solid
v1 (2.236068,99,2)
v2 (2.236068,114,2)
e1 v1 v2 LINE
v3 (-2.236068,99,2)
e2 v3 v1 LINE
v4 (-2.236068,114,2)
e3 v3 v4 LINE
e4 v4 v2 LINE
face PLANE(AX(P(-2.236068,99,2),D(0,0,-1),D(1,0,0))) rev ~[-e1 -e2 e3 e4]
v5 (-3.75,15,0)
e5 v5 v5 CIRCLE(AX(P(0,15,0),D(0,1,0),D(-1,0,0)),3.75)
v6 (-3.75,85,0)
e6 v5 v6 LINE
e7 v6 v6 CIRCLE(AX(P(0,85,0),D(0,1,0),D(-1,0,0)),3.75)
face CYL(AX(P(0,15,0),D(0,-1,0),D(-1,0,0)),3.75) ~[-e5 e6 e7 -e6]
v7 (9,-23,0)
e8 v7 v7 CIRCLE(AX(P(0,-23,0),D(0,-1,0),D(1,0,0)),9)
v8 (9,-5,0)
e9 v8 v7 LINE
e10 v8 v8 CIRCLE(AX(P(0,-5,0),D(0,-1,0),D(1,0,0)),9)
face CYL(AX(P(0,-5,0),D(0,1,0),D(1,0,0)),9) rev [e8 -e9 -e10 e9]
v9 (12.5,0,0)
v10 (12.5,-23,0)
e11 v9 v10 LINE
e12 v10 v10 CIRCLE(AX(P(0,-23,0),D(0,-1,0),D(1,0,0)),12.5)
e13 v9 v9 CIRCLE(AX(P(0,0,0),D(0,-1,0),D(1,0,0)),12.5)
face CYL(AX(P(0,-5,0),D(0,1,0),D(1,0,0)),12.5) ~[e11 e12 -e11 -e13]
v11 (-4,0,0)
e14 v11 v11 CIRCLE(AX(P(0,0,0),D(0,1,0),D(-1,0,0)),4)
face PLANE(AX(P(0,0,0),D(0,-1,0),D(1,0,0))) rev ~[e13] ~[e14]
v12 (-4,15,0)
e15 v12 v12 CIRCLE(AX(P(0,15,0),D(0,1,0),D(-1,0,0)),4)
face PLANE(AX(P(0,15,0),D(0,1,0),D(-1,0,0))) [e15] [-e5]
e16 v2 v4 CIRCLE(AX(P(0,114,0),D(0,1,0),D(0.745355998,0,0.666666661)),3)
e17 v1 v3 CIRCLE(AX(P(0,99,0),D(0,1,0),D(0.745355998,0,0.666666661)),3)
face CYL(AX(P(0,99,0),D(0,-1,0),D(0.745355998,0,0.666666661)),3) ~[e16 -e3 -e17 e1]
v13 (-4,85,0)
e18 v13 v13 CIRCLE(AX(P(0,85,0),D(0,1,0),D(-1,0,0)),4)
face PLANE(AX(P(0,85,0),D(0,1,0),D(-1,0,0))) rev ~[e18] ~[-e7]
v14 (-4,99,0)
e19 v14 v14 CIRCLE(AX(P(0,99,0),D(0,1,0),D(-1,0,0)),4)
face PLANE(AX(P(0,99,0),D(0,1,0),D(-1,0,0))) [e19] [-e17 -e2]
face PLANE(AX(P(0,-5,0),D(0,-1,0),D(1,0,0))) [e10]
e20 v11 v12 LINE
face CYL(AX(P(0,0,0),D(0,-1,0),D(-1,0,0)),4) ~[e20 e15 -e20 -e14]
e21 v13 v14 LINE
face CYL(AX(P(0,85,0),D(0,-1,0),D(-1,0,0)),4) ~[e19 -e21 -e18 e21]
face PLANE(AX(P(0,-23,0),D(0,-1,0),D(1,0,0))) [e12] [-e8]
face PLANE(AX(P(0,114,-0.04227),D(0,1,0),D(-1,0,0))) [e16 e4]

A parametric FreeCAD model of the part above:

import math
import FreeCAD as App
import Part
import Sketcher

V = App.Vector
Q = App.Units.Quantity

doc = App.newDocument("Part")
body = doc.addObject("PartDesign::Body", "Body")

# Sketch on XZ plane
sketch1 = doc.addObject("Sketcher::SketchObject", "Sketch")
body.addObject(sketch1)
sketch1.AttachmentSupport = (doc.XZ_Plane, [""])
sketch1.MapMode = "FlatFace"
sketch1.addGeometry(Part.Circle(V(0, 0, 0), V(0, 0, 1), 12), False)
sketch1.addConstraint([
    Sketcher.Constraint("Coincident", 0, 3, -1, 1),
    Sketcher.Constraint("Diameter", 0, Q("25 mm")),
])
pad1 = doc.addObject("PartDesign::Pad", "Pad")
body.addObject(pad1)
pad1.Profile = sketch1
pad1.Length = 5

# Sketch on XZ plane
sketch2 = doc.addObject("Sketcher::SketchObject", "Sketch001")
body.addObject(sketch2)
sketch2.AttachmentSupport = (doc.XZ_Plane, [""])
sketch2.MapMode = "FlatFace"
sketch2.AttachmentOffset = App.Placement(V(0, 0, 5), App.Rotation())
sketch2.addGeometry([
    Part.Circle(V(0, 0, 0), V(0, 0, 1), 12),
    Part.Circle(V(0, 0, 0), V(0, 0, 1), 9),
], False)
sketch2.addConstraint([
    Sketcher.Constraint("Coincident", 0, 3, -1, 1),
    Sketcher.Constraint("Coincident", 1, 3, -1, 1),
    Sketcher.Constraint("Diameter", 0, Q("25 mm")),
    Sketcher.Constraint("Diameter", 1, Q("18 mm")),
])
pad2 = doc.addObject("PartDesign::Pad", "Pad001")
body.addObject(pad2)
pad2.Profile = sketch2
pad2.Length = 18

# Sketch on XZ plane
sketch3 = doc.addObject("Sketcher::SketchObject", "Sketch002")
body.addObject(sketch3)
sketch3.AttachmentSupport = (doc.XZ_Plane, [""])
sketch3.MapMode = "FlatFace"
sketch3.addGeometry(Part.Circle(V(0, 0, 0), V(0, 0, 1), 4), False)
sketch3.addConstraint([
    Sketcher.Constraint("Coincident", 0, 3, -1, 1),
    Sketcher.Constraint("Diameter", 0, Q("8 mm")),
])
pad3 = doc.addObject("PartDesign::Pad", "Pad002")
body.addObject(pad3)
pad3.Profile = sketch3
pad3.Length = 15
pad3.Reversed = True

# Sketch on XZ plane
sketch4 = doc.addObject("Sketcher::SketchObject", "Sketch003")
body.addObject(sketch4)
sketch4.AttachmentSupport = (doc.XZ_Plane, [""])
sketch4.MapMode = "FlatFace"
sketch4.AttachmentOffset = App.Placement(V(0, 0, -15), App.Rotation())
sketch4.addGeometry(Part.Circle(V(0, 0, 0), V(0, 0, 1), 3.8), False)
sketch4.addConstraint([
    Sketcher.Constraint("Coincident", 0, 3, -1, 1),
    Sketcher.Constraint("Diameter", 0, Q("7.5 mm")),
])
pad4 = doc.addObject("PartDesign::Pad", "Pad003")
body.addObject(pad4)
pad4.Profile = sketch4
pad4.Length = 70
pad4.Reversed = True

# Sketch on XZ plane
sketch5 = doc.addObject("Sketcher::SketchObject", "Sketch004")
body.addObject(sketch5)
sketch5.AttachmentSupport = (doc.XZ_Plane, [""])
sketch5.MapMode = "FlatFace"
sketch5.AttachmentOffset = App.Placement(V(0, 0, -85), App.Rotation())
sketch5.addGeometry(Part.Circle(V(0, 0, 0), V(0, 0, 1), 4), False)
sketch5.addConstraint([
    Sketcher.Constraint("Coincident", 0, 3, -1, 1),
    Sketcher.Constraint("Diameter", 0, Q("8 mm")),
])
pad5 = doc.addObject("PartDesign::Pad", "Pad004")
body.addObject(pad5)
pad5.Profile = sketch5
pad5.Length = 14
pad5.Reversed = True

# Sketch on XZ plane
sketch6 = doc.addObject("Sketcher::SketchObject", "Sketch005")
body.addObject(sketch6)
sketch6.AttachmentSupport = (doc.XZ_Plane, [""])
sketch6.MapMode = "FlatFace"
sketch6.AttachmentOffset = App.Placement(V(0, 0, -99), App.Rotation())
sketch6.addGeometry([
    Part.LineSegment(V(-2.2, 2, 0), V(2.2, 2, 0)),
    Part.ArcOfCircle(Part.Circle(V(0, 0, 0), V(0, 0, 1), 3), math.radians(138), math.radians(402)),
], False)
sketch6.addConstraint([
    Sketcher.Constraint("Coincident", 0, 1, 1, 1),
    Sketcher.Constraint("Coincident", 1, 2, 0, 2),
    Sketcher.Constraint("Horizontal", 0),
    Sketcher.Constraint("Coincident", 1, 3, -1, 1),
    Sketcher.Constraint("Radius", 1, Q("3 mm")),
    Sketcher.Constraint("DistanceY", -1, 1, 0, 1, Q("2 mm")),
])
pad6 = doc.addObject("PartDesign::Pad", "Pad005")
body.addObject(pad6)
pad6.Profile = sketch6
pad6.Length = 15
pad6.Reversed = True

doc.recompute()
